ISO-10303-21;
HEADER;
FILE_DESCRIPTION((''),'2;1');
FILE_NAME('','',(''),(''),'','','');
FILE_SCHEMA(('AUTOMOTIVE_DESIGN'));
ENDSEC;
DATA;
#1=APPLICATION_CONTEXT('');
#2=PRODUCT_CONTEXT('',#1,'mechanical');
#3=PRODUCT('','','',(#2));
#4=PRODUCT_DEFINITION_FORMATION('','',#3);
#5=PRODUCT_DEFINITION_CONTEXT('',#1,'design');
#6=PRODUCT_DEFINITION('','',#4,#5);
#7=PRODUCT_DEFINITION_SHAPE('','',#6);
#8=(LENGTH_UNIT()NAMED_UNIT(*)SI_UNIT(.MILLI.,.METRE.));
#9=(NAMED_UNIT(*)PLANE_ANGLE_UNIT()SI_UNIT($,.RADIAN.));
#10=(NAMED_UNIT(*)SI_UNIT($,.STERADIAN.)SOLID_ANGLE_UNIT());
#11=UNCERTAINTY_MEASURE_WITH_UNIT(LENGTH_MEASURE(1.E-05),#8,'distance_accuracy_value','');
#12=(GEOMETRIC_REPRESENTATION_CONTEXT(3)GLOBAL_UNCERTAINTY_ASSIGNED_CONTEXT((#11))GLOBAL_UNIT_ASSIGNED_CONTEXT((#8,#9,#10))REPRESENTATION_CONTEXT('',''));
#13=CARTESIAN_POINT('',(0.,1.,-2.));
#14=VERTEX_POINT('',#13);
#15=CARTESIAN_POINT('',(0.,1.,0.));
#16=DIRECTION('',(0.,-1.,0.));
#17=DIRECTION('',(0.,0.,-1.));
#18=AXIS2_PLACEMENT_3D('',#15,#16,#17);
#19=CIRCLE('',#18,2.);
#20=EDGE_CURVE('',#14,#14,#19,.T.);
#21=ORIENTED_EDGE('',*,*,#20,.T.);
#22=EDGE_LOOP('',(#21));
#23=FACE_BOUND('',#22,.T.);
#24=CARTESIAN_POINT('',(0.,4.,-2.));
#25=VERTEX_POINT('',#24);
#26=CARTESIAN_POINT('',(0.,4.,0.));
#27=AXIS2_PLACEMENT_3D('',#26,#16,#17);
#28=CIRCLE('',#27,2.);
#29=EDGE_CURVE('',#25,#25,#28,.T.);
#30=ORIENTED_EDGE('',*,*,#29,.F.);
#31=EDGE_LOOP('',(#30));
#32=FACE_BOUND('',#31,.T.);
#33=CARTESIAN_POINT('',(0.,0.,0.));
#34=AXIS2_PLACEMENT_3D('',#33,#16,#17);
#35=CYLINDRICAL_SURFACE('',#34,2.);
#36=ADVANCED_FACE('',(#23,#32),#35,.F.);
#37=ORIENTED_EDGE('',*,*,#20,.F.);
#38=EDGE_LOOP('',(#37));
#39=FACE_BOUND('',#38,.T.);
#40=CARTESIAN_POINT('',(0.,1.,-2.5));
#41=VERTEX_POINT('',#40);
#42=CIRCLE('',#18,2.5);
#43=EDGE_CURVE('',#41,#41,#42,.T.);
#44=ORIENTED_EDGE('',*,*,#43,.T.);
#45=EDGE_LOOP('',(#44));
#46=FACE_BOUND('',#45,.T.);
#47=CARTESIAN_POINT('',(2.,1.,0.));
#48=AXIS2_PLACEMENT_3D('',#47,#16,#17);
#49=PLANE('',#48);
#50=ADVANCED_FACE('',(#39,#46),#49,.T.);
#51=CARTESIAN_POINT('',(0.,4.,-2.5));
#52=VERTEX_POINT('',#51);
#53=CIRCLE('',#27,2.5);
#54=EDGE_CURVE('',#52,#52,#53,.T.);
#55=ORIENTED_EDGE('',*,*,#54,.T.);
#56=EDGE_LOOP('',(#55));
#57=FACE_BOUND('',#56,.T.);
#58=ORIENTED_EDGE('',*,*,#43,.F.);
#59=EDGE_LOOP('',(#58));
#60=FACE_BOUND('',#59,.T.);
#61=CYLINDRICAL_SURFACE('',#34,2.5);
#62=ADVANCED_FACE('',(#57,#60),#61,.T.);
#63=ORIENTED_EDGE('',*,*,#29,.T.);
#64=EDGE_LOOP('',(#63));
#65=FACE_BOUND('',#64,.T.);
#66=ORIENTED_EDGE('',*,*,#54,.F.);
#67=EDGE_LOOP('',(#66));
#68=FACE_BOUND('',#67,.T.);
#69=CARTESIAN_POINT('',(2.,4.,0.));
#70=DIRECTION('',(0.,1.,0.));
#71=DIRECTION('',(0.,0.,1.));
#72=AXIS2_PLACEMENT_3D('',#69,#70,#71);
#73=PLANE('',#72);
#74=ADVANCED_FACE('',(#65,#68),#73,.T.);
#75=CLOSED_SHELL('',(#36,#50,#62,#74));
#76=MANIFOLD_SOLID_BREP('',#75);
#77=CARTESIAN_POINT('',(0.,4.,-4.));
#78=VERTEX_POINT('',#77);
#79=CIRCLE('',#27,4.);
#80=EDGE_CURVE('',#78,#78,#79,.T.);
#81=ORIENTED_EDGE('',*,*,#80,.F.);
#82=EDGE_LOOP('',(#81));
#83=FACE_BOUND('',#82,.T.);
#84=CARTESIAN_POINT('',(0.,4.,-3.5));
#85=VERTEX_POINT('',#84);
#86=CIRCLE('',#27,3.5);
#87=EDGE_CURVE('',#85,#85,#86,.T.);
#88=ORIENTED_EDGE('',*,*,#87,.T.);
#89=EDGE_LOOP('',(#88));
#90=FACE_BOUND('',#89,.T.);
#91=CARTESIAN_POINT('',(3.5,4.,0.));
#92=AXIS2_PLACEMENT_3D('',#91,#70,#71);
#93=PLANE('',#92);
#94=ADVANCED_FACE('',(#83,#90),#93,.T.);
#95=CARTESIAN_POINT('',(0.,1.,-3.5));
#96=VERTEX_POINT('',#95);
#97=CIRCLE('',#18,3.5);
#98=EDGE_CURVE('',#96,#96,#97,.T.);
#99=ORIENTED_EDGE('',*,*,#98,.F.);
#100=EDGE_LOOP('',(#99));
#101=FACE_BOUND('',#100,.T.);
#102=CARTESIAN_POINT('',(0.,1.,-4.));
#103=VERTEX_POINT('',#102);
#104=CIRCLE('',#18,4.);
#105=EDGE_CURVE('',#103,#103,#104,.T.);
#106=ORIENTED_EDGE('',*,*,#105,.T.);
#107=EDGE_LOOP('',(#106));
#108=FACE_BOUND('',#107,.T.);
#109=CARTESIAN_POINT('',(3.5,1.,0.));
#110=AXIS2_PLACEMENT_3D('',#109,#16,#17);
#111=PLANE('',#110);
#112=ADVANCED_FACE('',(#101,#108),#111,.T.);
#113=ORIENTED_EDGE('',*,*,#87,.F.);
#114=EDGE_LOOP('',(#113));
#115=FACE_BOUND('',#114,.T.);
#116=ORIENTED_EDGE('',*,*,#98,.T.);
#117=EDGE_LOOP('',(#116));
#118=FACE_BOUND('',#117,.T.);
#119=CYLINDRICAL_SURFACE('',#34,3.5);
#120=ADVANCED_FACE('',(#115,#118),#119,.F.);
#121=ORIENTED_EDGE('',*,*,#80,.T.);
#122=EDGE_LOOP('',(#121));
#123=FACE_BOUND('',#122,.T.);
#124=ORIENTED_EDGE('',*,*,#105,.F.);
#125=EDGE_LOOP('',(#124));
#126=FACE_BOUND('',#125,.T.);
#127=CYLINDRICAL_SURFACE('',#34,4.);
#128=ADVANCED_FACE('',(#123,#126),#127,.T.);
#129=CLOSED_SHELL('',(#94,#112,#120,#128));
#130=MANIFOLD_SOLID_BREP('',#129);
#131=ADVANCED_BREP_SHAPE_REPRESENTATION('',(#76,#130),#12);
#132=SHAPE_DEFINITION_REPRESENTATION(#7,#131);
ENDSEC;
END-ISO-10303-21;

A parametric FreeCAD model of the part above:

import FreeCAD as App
import Part
import Sketcher

V = App.Vector

doc = App.newDocument("Part")
body = doc.addObject("PartDesign::Body", "Body")
body.AllowCompound = True

sketch1 = body.newObject("Sketcher::SketchObject", "Sketch")
sketch1.AttachmentSupport = (doc.getObject("XY_Plane"), [""])
sketch1.MapMode = "FlatFace"
sketch1.addGeometry(Part.LineSegment(V(2, 4, 0), V(2, 1, 0)), False)
sketch1.addGeometry(Part.LineSegment(V(2, 1, 0), V(2.5, 1, 0)), False)
sketch1.addGeometry(Part.LineSegment(V(2.5, 1, 0), V(2.5, 4, 0)), False)
sketch1.addGeometry(Part.LineSegment(V(2.5, 4, 0), V(2, 4, 0)), False)
sketch1.addGeometry(Part.LineSegment(V(3.5, 4, 0), V(3.5, 1, 0)), False)
sketch1.addGeometry(Part.LineSegment(V(3.5, 1, 0), V(4, 1, 0)), False)
sketch1.addGeometry(Part.LineSegment(V(4, 1, 0), V(4, 4, 0)), False)
sketch1.addGeometry(Part.LineSegment(V(4, 4, 0), V(3.5, 4, 0)), False)
sketch1.addConstraint(Sketcher.Constraint("Coincident", 0, 2, 1, 1))
sketch1.addConstraint(Sketcher.Constraint("Coincident", 1, 2, 2, 1))
sketch1.addConstraint(Sketcher.Constraint("Coincident", 2, 2, 3, 1))
sketch1.addConstraint(Sketcher.Constraint("Coincident", 3, 2, 0, 1))
sketch1.addConstraint(Sketcher.Constraint("Coincident", 4, 2, 5, 1))
sketch1.addConstraint(Sketcher.Constraint("Coincident", 5, 2, 6, 1))
sketch1.addConstraint(Sketcher.Constraint("Coincident", 6, 2, 7, 1))
sketch1.addConstraint(Sketcher.Constraint("Coincident", 7, 2, 4, 1))
sketch1.addConstraint(Sketcher.Constraint("Vertical", 0))
sketch1.addConstraint(Sketcher.Constraint("Horizontal", 1))
sketch1.addConstraint(Sketcher.Constraint("Vertical", 2))
sketch1.addConstraint(Sketcher.Constraint("Horizontal", 3))
sketch1.addConstraint(Sketcher.Constraint("Vertical", 4))
sketch1.addConstraint(Sketcher.Constraint("Horizontal", 5))
sketch1.addConstraint(Sketcher.Constraint("Vertical", 6))
sketch1.addConstraint(Sketcher.Constraint("Horizontal", 7))
sketch1.addConstraint(Sketcher.Constraint("Horizontal", 1, 2, 4, 2))
sketch1.addConstraint(Sketcher.Constraint("Horizontal", 3, 2, 6, 2))
sketch1.addConstraint(Sketcher.Constraint("Equal", 3, 5))
sketch1.addConstraint(Sketcher.Constraint("DistanceY", 0, 2, 0, 1, 3.0))
sketch1.addConstraint(Sketcher.Constraint("DistanceX", 1, 1, 1, 2, 0.5))
sketch1.addConstraint(Sketcher.Constraint("DistanceX", -1, 1, 0, 2, 2.0))
sketch1.addConstraint(Sketcher.Constraint("DistanceY", -1, 1, 0, 2, 1.0))
sketch1.addConstraint(Sketcher.Constraint("DistanceX", -1, 1, 5, 2, 4.0))
revolution = body.newObject("PartDesign::Revolution", "Revolution")
revolution.Profile = sketch1
revolution.ReferenceAxis = (sketch1, ["V_Axis"])
revolution.Angle = 360

doc.recompute()
